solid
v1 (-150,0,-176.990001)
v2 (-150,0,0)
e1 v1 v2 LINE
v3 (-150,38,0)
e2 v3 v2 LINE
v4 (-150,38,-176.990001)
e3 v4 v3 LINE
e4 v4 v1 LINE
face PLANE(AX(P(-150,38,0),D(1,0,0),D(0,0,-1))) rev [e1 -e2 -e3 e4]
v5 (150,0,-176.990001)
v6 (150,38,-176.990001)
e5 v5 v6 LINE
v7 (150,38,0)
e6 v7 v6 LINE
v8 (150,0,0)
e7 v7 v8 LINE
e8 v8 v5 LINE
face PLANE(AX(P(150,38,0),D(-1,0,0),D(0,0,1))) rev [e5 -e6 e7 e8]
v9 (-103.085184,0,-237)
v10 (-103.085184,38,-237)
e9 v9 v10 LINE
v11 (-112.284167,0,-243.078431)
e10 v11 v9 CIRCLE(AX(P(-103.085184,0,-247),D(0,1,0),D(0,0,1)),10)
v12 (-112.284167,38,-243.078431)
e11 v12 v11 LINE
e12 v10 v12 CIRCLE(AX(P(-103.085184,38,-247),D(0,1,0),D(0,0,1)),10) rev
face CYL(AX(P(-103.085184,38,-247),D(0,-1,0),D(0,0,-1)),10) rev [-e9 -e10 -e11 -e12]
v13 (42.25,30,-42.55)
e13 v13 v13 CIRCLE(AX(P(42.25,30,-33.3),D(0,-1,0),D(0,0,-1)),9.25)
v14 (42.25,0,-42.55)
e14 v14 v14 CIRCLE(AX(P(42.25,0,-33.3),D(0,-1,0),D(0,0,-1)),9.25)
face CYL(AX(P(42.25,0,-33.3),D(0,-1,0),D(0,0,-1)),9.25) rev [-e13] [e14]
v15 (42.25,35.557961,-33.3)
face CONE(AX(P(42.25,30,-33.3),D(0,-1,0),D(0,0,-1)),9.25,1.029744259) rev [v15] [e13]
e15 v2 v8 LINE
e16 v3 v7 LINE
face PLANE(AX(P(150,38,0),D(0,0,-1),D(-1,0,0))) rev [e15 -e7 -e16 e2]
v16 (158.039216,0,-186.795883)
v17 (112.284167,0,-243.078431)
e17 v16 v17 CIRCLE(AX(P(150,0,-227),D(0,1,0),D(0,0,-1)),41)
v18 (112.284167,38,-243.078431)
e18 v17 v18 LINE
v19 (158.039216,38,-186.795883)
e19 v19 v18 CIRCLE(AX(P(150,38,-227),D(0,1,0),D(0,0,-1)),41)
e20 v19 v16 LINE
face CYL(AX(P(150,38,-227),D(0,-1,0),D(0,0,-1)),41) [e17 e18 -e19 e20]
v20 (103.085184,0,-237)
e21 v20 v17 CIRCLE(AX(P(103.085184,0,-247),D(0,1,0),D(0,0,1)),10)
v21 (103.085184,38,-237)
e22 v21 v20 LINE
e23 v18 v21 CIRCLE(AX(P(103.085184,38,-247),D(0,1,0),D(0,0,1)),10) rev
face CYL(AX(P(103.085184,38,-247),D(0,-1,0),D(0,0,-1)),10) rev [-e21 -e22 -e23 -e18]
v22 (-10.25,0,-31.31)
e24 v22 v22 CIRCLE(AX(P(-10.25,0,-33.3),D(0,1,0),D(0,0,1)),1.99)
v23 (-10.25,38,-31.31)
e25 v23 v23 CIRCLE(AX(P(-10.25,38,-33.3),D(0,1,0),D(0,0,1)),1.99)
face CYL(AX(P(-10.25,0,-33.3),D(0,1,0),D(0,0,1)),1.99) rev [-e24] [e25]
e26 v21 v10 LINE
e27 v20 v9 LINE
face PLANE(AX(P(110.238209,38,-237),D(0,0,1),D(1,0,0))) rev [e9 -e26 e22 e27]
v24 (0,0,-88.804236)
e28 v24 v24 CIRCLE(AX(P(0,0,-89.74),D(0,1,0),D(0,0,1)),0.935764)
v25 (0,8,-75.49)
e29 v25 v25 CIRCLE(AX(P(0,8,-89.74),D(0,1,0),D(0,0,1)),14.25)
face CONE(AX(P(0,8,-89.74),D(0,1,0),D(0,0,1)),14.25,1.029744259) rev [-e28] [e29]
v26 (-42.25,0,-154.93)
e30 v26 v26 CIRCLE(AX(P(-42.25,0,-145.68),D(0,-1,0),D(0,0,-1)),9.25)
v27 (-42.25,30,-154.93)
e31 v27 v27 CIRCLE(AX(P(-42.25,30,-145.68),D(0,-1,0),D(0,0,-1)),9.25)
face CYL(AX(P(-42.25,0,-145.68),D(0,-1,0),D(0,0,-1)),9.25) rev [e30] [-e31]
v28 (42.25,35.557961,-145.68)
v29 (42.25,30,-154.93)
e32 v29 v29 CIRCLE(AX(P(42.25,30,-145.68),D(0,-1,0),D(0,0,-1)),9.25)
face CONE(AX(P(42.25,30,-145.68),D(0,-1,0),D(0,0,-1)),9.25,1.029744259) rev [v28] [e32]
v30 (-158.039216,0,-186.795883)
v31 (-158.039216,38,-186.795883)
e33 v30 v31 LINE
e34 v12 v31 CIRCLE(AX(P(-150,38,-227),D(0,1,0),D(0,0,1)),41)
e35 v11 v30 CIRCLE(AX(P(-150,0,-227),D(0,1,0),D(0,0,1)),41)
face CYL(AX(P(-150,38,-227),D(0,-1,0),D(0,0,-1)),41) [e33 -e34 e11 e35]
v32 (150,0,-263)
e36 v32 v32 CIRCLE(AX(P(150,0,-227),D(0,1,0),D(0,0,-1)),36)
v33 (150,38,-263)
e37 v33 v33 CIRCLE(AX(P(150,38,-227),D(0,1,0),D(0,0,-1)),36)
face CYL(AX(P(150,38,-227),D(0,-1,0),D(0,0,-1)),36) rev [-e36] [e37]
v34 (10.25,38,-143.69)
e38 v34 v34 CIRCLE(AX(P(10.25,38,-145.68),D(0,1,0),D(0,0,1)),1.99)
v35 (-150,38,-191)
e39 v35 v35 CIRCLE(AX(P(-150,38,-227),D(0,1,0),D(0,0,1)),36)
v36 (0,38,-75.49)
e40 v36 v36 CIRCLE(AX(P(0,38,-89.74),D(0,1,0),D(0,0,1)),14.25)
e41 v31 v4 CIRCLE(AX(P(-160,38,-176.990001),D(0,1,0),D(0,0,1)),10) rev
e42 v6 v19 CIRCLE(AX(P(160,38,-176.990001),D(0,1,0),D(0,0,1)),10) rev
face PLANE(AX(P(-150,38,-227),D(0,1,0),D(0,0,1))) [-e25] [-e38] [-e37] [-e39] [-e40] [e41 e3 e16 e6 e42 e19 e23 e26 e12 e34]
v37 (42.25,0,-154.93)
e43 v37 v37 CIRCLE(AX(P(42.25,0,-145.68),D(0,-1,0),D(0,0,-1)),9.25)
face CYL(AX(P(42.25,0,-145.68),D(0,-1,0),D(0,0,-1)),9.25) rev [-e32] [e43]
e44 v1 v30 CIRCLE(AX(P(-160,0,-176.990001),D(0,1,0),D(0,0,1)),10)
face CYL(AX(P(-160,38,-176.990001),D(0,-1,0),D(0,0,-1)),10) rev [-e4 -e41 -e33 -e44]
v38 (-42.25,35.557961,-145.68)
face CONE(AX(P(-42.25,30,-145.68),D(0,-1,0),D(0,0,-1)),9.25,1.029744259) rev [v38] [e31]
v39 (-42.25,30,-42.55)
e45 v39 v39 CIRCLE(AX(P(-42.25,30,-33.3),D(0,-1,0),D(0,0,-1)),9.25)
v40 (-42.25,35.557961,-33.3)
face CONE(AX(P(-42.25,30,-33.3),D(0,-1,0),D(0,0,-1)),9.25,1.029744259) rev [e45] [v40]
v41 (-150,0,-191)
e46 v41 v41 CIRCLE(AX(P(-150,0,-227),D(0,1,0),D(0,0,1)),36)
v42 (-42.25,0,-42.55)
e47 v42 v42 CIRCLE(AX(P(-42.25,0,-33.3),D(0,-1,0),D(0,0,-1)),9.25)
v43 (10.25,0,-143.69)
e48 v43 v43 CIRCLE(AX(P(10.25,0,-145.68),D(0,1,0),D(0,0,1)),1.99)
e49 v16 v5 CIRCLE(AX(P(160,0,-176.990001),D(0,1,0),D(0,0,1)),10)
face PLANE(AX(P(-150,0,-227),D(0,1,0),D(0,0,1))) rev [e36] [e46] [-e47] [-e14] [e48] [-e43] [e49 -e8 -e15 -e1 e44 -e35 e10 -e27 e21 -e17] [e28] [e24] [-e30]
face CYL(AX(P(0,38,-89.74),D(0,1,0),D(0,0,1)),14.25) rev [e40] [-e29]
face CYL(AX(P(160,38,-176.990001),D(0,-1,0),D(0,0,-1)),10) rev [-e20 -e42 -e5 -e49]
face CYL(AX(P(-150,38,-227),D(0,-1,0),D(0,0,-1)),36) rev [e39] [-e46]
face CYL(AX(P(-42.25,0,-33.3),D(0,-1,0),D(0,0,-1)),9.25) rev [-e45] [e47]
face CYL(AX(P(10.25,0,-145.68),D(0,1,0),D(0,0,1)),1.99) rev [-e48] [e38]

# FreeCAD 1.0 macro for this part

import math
import FreeCAD as App
import Part
import Sketcher

V = App.Vector


def edges_at(feature, points):
    """Names of the edges that pass closest to the given points."""
    edges = feature.Shape.Edges
    near = lambda p: min(range(len(edges)), key=lambda i: edges[i].distToShape(Part.Vertex(*p))[0])
    return sorted({f"Edge{near(p) + 1}" for p in points})

doc = App.newDocument("Part")
body = doc.addObject("PartDesign::Body", "Body")

# Sketch on XZ plane
sketch1 = body.newObject("Sketcher::SketchObject", "Sketch")
sketch1.AttachmentSupport = (doc.getObject("XZ_Plane"), [""])
sketch1.MapMode = "FlatFace"
sketch1.addGeometry(Part.LineSegment(V(-150, 0, 0), V(150, 0, 0)), False)
sketch1.addGeometry(Part.LineSegment(V(150, 0, 0), V(150, -186, 0)), False)
sketch1.addGeometry(Part.ArcOfCircle(Part.Circle(V(150, -227, 0), V(0, 0, 1), 41), math.radians(-166), math.radians(90)), False)
sketch1.addGeometry(Part.LineSegment(V(110, -237, 0), V(-110, -237, 0)), False)
sketch1.addGeometry(Part.ArcOfCircle(Part.Circle(V(-150, -227, 0), V(0, 0, 1), 41), math.radians(90), math.radians(346)), False)
sketch1.addGeometry(Part.LineSegment(V(-150, -186, 0), V(-150, 0, 0)), False)
sketch1.addGeometry(Part.Circle(V(150, -227, 0), V(0, 0, 1), 36), False)
sketch1.addGeometry(Part.Circle(V(-150, -227, 0), V(0, 0, 1), 36), False)
sketch1.addConstraint(Sketcher.Constraint("Coincident", 0, 2, 1, 1))
sketch1.addConstraint(Sketcher.Constraint("Coincident", 1, 2, 2, 2))
sketch1.addConstraint(Sketcher.Constraint("Coincident", 2, 1, 3, 1))
sketch1.addConstraint(Sketcher.Constraint("Coincident", 3, 2, 4, 2))
sketch1.addConstraint(Sketcher.Constraint("Coincident", 4, 1, 5, 1))
sketch1.addConstraint(Sketcher.Constraint("Coincident", 5, 2, 0, 1))
sketch1.addConstraint(Sketcher.Constraint("Horizontal", 0))
sketch1.addConstraint(Sketcher.Constraint("Vertical", 1))
sketch1.addConstraint(Sketcher.Constraint("Horizontal", 3))
sketch1.addConstraint(Sketcher.Constraint("Vertical", 5))
sketch1.addConstraint(Sketcher.Constraint("Coincident", 6, 3, 2, 3))
sketch1.addConstraint(Sketcher.Constraint("Coincident", 7, 3, 4, 3))
sketch1.addConstraint(Sketcher.Constraint("Equal", 2, 4))
sketch1.addConstraint(Sketcher.Constraint("Equal", 6, 7))
sketch1.addConstraint(Sketcher.Constraint("Symmetric", 0, 2, 5, 2, -1, 1))
sketch1.addConstraint(Sketcher.Constraint("Symmetric", 2, 3, 4, 3, -2))
sketch1.addConstraint(Sketcher.Constraint("Vertical", 6, 3, 0, 2))
sketch1.addConstraint(Sketcher.Constraint("Diameter", 6, 72.0))
sketch1.addConstraint(Sketcher.Constraint("Radius", 2, 41.0))
sketch1.addConstraint(Sketcher.Constraint("DistanceX", 0, 1, 0, 2, 300.0))
sketch1.addConstraint(Sketcher.Constraint("DistanceY", 1, 2, 1, 1, 186.0))
sketch1.addConstraint(Sketcher.Constraint("DistanceY", 2, 1, -1, 1, 237.0))
pad1 = body.newObject("PartDesign::Pad", "Pad")
pad1.Profile = sketch1
pad1.Length = 38
pad1.Reversed = True
doc.recompute()

fillet = body.newObject("PartDesign::Fillet", "Fillet")
fillet.Base = (pad1, edges_at(pad1, [
    (-150, 19, -186),
    (-110.238, 19, -237),
    (110.238, 19, -237),
    (150, 19, -186),
]))
fillet.Radius = 10

# Sketch on XZ plane
sketch2 = body.newObject("Sketcher::SketchObject", "Sketch001")
sketch2.AttachmentSupport = (doc.getObject("XZ_Plane"), [""])
sketch2.MapMode = "FlatFace"
sketch2.AttachmentOffset = App.Placement(V(0, 0, -38), App.Rotation())
sketch2.addGeometry(Part.Circle(V(-10.2, -33.3, 0), V(0, 0, 1), 2), False)
sketch2.addGeometry(Part.Circle(V(10.2, -145.7, 0), V(0, 0, 1), 2), False)
sketch2.addConstraint(Sketcher.Constraint("Equal", 0, 1))
sketch2.addConstraint(Sketcher.Constraint("Diameter", 0, 3.98))
sketch2.addConstraint(Sketcher.Constraint("DistanceY", 0, 3, -1, 1, 33.3))
sketch2.addConstraint(Sketcher.Constraint("DistanceX", 0, 3, 1, 3, 20.5))
sketch2.addConstraint(Sketcher.Constraint("DistanceX", 0, 3, -1, 1, 10.25))
sketch2.addConstraint(Sketcher.Constraint("DistanceY", 1, 3, -1, 1, 145.68))
pocket1 = body.newObject("PartDesign::Pocket", "Pocket")
pocket1.Profile = sketch2
pocket1.Type = "ThroughAll"
pocket1.Reversed = True

# Sketch on XZ plane
sketch3 = body.newObject("Sketcher::SketchObject", "Sketch002")
sketch3.AttachmentSupport = (doc.getObject("XZ_Plane"), [""])
sketch3.MapMode = "FlatFace"
sketch3.addGeometry(Part.Circle(V(-42, -146, 0), V(0, 0, 1), 9), False)
sketch3.addGeometry(Part.Circle(V(42, -146, 0), V(0, 0, 1), 9), False)
sketch3.addGeometry(Part.Circle(V(-42, -33, 0), V(0, 0, 1), 9), False)
sketch3.addGeometry(Part.Circle(V(42, -33, 0), V(0, 0, 1), 9), False)
sketch3.addConstraint(Sketcher.Constraint("Equal", 0, 1))
sketch3.addConstraint(Sketcher.Constraint("Equal", 1, 2))
sketch3.addConstraint(Sketcher.Constraint("Equal", 2, 3))
sketch3.addConstraint(Sketcher.Constraint("Symmetric", 0, 3, 1, 3, -2))
sketch3.addConstraint(Sketcher.Constraint("Symmetric", 2, 3, 3, 3, -2))
sketch3.addConstraint(Sketcher.Constraint("Vertical", 0, 3, 2, 3))
sketch3.addConstraint(Sketcher.Constraint("Diameter", 0, 18.5))
sketch3.addConstraint(Sketcher.Constraint("DistanceY", 2, 3, -1, 1, 33.3))
sketch3.addConstraint(Sketcher.Constraint("DistanceX", 0, 3, 1, 3, 84.5))
sketch3.addConstraint(Sketcher.Constraint("DistanceY", 0, 3, -1, 1, 145.68))
doc.recompute()
hole = body.newObject("PartDesign::Hole", "Hole")
hole.Profile = sketch3
hole.ThreadType = "None"
hole.Diameter = 18.5
hole.DepthType = "Dimension"
hole.Depth = 30
hole.DrillPoint = "Angled"
hole.DrillPointAngle = 118

# Sketch on XZ plane
sketch4 = body.newObject("Sketcher::SketchObject", "Sketch003")
sketch4.AttachmentSupport = (doc.getObject("XZ_Plane"), [""])
sketch4.MapMode = "FlatFace"
sketch4.AttachmentOffset = App.Placement(V(0, 0, -38), App.Rotation())
sketch4.addGeometry(Part.Circle(V(0, -90, 0), V(0, 0, 1), 14), False)
sketch4.addConstraint(Sketcher.Constraint("PointOnObject", 0, 3, -2))
sketch4.addConstraint(Sketcher.Constraint("Diameter", 0, 28.5))
sketch4.addConstraint(Sketcher.Constraint("DistanceY", 0, 3, -1, 1, 89.74))
doc.recompute()
hole2 = body.newObject("PartDesign::Hole", "Hole001")
hole2.Profile = sketch4
hole2.ThreadType = "None"
hole2.Diameter = 28.5
hole2.DepthType = "Dimension"
hole2.Depth = 30
hole2.DrillPoint = "Angled"
hole2.DrillPointAngle = 118
hole2.Reversed = True

doc.recompute()
